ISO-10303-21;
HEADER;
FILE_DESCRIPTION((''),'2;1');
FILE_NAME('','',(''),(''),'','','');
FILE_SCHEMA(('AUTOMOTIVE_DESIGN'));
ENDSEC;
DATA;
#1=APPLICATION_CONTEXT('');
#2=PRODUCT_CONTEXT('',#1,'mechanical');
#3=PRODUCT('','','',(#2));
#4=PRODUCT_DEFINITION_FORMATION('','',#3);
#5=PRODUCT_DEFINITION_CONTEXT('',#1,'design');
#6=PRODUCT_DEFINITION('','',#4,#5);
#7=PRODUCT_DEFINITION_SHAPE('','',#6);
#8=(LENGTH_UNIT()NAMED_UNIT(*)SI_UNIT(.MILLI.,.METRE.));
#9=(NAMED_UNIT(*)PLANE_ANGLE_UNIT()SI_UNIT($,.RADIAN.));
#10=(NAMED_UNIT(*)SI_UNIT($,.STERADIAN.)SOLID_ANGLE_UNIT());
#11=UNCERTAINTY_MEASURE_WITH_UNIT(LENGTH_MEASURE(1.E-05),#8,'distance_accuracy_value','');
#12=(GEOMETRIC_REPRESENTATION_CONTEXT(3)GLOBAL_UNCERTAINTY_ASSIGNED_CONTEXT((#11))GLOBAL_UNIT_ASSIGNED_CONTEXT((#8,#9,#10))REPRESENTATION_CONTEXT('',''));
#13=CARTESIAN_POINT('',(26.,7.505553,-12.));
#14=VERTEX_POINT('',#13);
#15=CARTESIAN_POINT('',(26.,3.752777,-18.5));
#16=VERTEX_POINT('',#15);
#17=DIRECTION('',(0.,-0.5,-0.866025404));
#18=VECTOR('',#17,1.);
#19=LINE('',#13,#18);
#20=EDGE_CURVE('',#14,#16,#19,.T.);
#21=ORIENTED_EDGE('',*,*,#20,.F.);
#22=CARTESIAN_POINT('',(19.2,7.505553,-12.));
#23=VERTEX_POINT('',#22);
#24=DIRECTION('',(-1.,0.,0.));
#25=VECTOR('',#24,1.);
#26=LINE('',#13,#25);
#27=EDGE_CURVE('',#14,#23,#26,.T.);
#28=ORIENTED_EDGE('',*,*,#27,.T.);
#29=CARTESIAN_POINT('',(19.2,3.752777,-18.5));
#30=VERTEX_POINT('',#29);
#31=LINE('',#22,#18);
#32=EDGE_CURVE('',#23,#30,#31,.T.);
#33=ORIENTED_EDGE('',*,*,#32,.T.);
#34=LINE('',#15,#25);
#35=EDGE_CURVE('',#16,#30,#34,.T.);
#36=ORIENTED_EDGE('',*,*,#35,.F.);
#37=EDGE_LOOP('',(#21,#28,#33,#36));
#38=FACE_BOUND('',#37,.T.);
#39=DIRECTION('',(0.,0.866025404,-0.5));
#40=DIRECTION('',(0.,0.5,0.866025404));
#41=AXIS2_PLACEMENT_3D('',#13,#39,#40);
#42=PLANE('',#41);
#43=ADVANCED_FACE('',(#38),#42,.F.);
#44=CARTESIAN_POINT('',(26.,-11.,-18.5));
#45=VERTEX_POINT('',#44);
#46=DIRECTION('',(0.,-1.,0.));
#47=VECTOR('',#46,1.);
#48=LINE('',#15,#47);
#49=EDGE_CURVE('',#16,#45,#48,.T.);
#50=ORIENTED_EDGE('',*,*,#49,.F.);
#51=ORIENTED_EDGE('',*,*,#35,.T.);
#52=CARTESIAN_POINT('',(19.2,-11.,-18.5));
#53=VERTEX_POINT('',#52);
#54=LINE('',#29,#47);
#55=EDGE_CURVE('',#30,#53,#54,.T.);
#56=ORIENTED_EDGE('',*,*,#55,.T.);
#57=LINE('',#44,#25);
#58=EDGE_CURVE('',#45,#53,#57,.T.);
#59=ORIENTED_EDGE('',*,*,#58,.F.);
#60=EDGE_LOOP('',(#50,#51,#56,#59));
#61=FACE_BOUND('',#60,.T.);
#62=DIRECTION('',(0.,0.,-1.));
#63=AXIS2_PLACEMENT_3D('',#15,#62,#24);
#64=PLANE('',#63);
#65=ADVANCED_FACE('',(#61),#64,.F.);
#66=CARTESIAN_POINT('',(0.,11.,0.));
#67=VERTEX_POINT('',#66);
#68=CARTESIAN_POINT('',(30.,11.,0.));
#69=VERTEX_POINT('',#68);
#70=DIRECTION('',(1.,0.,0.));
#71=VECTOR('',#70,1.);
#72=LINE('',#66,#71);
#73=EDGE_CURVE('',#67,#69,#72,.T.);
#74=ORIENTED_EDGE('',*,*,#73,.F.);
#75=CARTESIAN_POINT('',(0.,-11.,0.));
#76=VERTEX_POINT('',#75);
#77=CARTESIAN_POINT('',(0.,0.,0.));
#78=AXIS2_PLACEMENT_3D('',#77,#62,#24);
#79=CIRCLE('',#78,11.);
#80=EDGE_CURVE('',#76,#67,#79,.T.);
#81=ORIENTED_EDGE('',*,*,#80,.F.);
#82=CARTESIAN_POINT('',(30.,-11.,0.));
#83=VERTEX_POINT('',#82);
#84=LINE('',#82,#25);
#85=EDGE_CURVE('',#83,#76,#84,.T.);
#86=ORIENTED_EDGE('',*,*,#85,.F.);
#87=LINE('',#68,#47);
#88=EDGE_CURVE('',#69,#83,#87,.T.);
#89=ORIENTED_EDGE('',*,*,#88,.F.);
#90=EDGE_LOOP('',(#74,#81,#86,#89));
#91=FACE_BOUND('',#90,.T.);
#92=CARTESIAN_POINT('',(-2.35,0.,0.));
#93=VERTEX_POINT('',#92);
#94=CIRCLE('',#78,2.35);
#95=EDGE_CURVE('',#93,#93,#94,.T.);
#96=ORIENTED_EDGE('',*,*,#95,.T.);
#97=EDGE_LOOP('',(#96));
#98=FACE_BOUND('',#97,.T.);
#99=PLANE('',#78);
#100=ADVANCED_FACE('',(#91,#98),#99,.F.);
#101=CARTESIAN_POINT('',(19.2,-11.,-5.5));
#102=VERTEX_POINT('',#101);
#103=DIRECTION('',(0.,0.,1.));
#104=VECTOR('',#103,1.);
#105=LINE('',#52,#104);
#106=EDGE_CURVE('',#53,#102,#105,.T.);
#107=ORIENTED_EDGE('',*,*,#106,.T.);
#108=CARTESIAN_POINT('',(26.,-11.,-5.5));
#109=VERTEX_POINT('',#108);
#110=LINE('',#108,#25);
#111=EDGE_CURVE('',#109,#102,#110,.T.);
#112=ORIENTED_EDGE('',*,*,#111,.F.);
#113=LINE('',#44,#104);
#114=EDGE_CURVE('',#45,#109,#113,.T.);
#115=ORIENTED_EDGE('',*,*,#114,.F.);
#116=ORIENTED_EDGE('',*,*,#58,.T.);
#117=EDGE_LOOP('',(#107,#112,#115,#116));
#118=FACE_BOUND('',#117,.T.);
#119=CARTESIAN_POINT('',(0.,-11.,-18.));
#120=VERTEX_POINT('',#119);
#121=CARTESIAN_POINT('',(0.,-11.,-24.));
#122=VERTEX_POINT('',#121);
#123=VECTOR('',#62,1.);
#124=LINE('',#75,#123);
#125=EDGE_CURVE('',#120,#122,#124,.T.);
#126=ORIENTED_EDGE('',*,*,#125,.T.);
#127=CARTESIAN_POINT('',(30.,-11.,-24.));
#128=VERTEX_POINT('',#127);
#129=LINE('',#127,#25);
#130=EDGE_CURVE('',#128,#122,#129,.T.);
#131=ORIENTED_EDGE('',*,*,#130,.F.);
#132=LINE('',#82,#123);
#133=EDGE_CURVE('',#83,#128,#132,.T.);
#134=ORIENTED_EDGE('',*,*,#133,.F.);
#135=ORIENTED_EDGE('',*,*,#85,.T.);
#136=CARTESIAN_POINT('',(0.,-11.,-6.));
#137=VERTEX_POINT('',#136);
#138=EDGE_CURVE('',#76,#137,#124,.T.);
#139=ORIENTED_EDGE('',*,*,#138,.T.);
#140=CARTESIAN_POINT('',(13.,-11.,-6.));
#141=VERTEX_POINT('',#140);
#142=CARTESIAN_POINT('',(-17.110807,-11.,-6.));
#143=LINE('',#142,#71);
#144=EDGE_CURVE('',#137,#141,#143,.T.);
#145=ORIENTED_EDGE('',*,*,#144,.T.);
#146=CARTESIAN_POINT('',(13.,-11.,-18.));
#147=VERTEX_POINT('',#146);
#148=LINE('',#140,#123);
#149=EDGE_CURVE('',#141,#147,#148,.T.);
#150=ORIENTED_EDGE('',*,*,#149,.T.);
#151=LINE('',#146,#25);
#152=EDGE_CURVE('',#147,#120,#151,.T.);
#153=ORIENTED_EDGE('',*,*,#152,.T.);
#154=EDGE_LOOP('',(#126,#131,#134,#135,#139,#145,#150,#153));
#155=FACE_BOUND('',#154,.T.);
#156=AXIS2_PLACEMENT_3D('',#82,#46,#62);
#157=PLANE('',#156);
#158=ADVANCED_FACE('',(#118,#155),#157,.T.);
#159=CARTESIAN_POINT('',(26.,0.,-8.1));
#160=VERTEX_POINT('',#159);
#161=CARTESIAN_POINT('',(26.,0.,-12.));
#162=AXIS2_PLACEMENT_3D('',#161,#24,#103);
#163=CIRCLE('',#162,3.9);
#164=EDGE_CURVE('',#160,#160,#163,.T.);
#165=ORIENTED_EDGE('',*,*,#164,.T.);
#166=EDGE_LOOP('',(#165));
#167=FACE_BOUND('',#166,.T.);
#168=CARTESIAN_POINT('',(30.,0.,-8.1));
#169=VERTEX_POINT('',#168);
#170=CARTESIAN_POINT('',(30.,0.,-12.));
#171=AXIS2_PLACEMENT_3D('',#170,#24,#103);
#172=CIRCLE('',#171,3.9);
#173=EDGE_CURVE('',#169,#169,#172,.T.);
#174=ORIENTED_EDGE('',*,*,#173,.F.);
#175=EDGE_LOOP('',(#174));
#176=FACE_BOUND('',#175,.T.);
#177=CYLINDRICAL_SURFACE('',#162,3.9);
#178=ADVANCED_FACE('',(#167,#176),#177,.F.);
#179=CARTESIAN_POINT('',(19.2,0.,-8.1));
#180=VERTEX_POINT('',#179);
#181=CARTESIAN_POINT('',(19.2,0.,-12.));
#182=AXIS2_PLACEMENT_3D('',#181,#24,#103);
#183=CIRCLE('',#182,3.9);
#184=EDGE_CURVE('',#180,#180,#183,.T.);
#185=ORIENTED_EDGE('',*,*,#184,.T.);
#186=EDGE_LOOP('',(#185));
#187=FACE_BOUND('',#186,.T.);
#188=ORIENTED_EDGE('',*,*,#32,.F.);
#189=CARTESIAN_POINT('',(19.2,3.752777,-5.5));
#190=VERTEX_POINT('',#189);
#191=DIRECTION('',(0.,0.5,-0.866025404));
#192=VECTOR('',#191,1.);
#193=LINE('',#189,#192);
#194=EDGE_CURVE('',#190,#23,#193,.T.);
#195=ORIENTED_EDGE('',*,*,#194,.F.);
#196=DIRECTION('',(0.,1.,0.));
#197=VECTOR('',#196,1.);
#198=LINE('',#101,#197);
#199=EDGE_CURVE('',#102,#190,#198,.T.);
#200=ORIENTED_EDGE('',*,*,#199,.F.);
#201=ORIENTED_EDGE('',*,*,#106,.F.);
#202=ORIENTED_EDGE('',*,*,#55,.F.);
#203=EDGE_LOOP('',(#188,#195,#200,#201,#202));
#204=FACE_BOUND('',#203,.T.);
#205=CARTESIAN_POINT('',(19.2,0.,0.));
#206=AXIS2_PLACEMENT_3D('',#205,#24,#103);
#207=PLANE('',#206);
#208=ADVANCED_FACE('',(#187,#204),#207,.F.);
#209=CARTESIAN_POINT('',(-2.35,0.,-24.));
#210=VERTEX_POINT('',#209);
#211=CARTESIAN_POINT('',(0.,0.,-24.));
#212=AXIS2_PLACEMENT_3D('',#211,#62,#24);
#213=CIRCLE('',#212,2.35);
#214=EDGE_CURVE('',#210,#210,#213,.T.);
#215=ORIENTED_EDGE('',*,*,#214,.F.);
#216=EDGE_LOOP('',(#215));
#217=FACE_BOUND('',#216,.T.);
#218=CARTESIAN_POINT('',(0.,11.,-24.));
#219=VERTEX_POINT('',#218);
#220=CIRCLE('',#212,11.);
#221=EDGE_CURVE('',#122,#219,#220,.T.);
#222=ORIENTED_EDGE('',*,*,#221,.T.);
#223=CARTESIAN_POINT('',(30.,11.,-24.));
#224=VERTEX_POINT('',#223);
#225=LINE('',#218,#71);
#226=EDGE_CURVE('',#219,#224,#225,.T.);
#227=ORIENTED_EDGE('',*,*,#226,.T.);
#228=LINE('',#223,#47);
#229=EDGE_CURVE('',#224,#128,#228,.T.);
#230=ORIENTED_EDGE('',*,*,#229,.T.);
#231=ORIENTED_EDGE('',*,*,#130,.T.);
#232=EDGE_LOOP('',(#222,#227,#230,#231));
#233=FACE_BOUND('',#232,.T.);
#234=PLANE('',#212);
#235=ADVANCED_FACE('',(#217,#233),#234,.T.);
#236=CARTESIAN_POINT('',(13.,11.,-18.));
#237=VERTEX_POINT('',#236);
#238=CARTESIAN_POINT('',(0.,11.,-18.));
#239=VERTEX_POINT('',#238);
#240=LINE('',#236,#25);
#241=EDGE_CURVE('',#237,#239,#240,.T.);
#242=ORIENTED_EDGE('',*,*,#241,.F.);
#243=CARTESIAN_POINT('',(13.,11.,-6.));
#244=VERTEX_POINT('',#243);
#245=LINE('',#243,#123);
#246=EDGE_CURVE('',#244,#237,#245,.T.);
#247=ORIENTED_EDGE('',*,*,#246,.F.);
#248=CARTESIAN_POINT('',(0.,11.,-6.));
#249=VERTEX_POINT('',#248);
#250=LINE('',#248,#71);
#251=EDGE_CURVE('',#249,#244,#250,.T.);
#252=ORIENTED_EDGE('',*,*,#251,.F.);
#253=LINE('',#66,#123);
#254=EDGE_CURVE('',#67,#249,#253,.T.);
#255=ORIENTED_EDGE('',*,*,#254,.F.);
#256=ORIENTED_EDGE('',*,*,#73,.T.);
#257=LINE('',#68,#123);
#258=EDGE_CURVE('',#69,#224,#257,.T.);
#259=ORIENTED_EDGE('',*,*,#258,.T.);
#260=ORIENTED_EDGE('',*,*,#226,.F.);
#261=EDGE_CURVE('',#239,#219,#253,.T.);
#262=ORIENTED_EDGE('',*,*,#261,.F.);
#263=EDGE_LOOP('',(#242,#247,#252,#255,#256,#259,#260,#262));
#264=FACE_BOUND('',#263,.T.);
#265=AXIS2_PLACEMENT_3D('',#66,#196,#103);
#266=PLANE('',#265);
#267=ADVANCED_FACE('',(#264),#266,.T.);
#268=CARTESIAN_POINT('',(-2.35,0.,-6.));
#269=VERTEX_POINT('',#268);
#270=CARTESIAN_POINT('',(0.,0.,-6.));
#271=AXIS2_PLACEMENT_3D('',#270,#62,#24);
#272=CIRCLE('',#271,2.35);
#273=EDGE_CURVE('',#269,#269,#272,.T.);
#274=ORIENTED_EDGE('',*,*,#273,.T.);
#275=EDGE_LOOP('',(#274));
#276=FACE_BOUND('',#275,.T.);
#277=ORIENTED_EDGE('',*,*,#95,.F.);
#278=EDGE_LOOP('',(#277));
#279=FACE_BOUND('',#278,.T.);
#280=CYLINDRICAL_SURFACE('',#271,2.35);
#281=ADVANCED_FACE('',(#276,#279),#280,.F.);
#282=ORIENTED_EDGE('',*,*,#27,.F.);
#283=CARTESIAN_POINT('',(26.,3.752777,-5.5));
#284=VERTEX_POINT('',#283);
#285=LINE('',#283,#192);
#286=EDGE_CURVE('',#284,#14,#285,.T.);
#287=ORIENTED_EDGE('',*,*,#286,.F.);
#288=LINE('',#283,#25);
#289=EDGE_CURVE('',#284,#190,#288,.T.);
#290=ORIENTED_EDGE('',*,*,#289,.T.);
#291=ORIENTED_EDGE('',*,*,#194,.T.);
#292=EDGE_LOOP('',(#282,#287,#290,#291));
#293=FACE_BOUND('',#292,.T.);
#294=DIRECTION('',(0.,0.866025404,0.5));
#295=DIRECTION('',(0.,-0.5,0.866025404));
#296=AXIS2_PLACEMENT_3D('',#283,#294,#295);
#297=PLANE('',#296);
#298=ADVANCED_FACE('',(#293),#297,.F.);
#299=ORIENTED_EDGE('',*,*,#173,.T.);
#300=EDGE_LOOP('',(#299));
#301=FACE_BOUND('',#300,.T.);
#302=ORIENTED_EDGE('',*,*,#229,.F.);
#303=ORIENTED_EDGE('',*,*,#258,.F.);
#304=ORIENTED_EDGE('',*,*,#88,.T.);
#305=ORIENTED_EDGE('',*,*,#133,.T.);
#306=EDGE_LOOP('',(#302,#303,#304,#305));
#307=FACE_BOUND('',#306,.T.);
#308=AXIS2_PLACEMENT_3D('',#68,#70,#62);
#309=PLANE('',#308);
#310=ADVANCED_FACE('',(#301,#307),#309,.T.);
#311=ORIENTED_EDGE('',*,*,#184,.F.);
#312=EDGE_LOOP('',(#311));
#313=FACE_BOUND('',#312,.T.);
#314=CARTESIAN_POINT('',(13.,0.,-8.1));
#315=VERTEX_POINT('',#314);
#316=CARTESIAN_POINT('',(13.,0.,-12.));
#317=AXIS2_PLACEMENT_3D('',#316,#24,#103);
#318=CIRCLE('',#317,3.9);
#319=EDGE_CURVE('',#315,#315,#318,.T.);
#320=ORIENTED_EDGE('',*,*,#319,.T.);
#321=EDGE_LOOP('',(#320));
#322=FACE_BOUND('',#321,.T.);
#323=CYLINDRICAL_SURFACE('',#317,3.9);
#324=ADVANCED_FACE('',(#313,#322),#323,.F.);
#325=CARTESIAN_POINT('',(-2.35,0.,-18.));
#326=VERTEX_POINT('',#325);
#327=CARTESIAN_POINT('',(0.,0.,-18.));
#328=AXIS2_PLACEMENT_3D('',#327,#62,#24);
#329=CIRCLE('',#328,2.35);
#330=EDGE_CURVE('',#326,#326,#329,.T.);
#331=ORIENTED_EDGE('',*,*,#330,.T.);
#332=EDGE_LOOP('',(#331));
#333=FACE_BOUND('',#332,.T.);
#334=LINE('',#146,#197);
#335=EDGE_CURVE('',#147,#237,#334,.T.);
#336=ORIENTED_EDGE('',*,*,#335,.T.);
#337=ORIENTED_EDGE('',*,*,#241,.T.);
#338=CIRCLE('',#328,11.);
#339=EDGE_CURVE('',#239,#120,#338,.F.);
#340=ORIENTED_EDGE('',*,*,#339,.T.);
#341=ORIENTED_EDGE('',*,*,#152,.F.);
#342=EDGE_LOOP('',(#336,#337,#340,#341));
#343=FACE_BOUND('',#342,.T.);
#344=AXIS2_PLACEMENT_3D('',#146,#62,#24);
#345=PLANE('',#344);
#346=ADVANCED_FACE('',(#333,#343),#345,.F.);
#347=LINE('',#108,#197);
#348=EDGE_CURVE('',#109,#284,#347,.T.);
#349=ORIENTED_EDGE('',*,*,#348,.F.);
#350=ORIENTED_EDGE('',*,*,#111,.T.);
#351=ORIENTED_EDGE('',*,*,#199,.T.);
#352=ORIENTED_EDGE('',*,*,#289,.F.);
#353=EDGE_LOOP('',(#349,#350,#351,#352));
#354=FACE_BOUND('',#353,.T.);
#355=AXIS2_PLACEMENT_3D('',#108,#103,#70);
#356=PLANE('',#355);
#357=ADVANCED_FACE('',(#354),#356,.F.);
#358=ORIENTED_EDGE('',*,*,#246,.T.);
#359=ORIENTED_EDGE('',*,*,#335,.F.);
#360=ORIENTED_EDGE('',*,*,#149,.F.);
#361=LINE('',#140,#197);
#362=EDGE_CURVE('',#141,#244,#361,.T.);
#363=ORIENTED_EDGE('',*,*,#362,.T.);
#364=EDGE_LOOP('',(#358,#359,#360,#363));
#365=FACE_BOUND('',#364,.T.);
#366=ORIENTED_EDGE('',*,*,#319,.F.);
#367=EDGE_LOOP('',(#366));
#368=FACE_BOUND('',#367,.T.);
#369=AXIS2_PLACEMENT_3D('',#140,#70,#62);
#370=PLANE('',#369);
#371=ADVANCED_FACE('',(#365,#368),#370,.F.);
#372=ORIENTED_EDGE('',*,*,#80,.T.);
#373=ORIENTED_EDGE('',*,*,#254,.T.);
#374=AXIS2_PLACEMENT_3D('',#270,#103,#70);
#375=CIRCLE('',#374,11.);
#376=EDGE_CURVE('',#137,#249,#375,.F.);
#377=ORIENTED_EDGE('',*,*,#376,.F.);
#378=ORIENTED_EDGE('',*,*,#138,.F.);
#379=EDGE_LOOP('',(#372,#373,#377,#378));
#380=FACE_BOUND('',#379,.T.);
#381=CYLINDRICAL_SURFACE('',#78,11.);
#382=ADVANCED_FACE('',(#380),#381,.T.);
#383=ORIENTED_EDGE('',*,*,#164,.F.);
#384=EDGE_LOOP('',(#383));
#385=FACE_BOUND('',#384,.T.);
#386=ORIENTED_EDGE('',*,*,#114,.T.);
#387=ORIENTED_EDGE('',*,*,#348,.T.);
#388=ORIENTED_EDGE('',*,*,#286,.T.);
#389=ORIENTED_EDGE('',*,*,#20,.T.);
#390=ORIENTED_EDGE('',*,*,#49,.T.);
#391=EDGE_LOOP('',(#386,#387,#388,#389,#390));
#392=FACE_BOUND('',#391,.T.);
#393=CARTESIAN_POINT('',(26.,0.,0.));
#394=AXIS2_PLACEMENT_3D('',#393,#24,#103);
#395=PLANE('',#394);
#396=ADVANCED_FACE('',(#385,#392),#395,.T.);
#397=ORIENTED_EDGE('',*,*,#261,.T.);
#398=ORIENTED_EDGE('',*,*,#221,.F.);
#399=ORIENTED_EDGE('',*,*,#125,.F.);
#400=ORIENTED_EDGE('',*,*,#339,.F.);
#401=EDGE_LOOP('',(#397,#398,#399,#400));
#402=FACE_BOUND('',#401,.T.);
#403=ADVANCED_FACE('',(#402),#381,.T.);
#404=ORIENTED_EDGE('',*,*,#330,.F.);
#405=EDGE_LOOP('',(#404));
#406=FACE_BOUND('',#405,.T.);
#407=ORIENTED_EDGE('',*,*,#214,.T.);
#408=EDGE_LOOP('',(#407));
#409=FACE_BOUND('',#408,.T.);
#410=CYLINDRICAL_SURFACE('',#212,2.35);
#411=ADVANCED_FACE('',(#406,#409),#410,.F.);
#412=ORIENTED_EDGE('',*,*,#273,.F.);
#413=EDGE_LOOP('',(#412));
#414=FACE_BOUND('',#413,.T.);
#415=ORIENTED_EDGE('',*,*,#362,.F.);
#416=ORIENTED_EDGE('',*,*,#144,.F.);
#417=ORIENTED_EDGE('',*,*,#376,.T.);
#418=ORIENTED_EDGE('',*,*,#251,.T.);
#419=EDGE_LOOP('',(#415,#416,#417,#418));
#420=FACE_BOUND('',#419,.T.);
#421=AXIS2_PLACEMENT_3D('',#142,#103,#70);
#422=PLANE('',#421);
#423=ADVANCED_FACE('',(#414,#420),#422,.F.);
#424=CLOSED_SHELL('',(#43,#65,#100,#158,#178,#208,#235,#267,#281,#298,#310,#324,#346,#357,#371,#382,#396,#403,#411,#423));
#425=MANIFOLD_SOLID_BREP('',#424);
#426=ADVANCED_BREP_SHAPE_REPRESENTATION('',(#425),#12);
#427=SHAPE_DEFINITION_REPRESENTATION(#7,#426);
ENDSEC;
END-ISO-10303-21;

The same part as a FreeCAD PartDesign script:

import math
import FreeCAD as App
import Part
import Sketcher
from FreeCAD import Vector
Q = App.Units.Quantity


def add_polygon(sketch, points):
    """Adds a closed chain of lines whose ends are joined by coincident constraints."""
    first, n = sketch.GeometryCount, len(points)
    for a, b in zip(points, points[1:] + points[:1]):
        sketch.addGeometry(Part.LineSegment(App.Vector(*a, 0), App.Vector(*b, 0)), False)
    for i in range(n):
        sketch.addConstraint(Sketcher.Constraint("Coincident", first + i, 2, first + (i + 1) % n, 1))

doc = App.newDocument("Part")
body = doc.addObject("PartDesign::Body", "Body")

sketch1 = body.newObject("Sketcher::SketchObject", "Sketch")
sketch1.AttachmentSupport = (doc.getObject("XY_Plane"), [""])
sketch1.MapMode = "FlatFace"
sketch1.AttachmentOffset = App.Placement(Vector(0, 0, -24), App.Rotation())
sketch1.addGeometry([
    Part.LineSegment(Vector(0, 11, 0), Vector(30, 11, 0)),
    Part.LineSegment(Vector(30, 11, 0), Vector(30, -11, 0)),
    Part.LineSegment(Vector(30, -11, 0), Vector(0, -11, 0)),
    Part.ArcOfCircle(Part.Circle(Vector(0, 0, 0), Vector(0, 0, 1), 11), math.radians(90), math.radians(270)),
], False)
sketch1.addConstraint([
    Sketcher.Constraint("Coincident", 0, 2, 1, 1),
    Sketcher.Constraint("Coincident", 1, 2, 2, 1),
    Sketcher.Constraint("Tangent", 2, 2, 3, 2),
    Sketcher.Constraint("Tangent", 3, 1, 0, 1),
    Sketcher.Constraint("Horizontal", 0),
    Sketcher.Constraint("Vertical", 1),
    Sketcher.Constraint("Horizontal", 2),
    Sketcher.Constraint("Coincident", 3, 3, -1, 1),
    Sketcher.Constraint("Radius", 3, 11.0),
    Sketcher.Constraint("DistanceX", 0, 1, 0, 2, 30.0),
])
pad1 = body.newObject("PartDesign::Pad", "Pad")
pad1.Profile = sketch1
pad1.Length = 24

sketch2 = body.newObject("Sketcher::SketchObject", "Sketch001")
sketch2.AttachmentSupport = (doc.getObject("XZ_Plane"), [""])
sketch2.MapMode = "FlatFace"
sketch2.AttachmentOffset = App.Placement(Vector(0, 0, -11), App.Rotation())
add_polygon(sketch2, [(13, -6), (13, -18), (-17, -18), (-17, -6)])
sketch2.addConstraint([
    Sketcher.Constraint("Vertical", 0),
    Sketcher.Constraint("Horizontal", 1),
    Sketcher.Constraint("Vertical", 2),
    Sketcher.Constraint("Horizontal", 3),
    Sketcher.Constraint("DistanceY", 0, 2, 0, 1, 12.0),
    Sketcher.Constraint("DistanceX", -1, 1, 0, 2, 13.0),
    Sketcher.Constraint("DistanceY", 0, 2, -1, 1, 18.0),
    Sketcher.Constraint("DistanceX", 1, 2, 1, 1, 30.110807),
])
pocket1 = body.newObject("PartDesign::Pocket", "Pocket")
pocket1.Profile = sketch2
pocket1.Type = "ThroughAll"
pocket1.Reversed = True

sketch3 = body.newObject("Sketcher::SketchObject", "Sketch002")
sketch3.AttachmentSupport = (doc.getObject("YZ_Plane"), [""])
sketch3.MapMode = "FlatFace"
sketch3.AttachmentOffset = App.Placement(Vector(0, 0, 19.2), App.Rotation())
add_polygon(sketch3, [(-11, -18), (-11, -6), (4, -6), (8, -12), (4, -18)])
sketch3.addConstraint([
    Sketcher.Constraint("Vertical", 0),
    Sketcher.Constraint("Horizontal", 1),
    Sketcher.Constraint("Horizontal", 4),
    Sketcher.Constraint("Vertical", 1, 2, 3, 2),
    Sketcher.Constraint("Equal", 2, 3),
    Sketcher.Constraint("DistanceY", 0, 1, 0, 2, 13.0),
    Sketcher.Constraint("Angle", 2, Q("-60 deg")),
    Sketcher.Constraint("DistanceX", 0, 2, -1, 1, 11.0),
    Sketcher.Constraint("DistanceY", 2, 2, -1, 1, 12.0),
    Sketcher.Constraint("DistanceX", 1, 1, 1, 2, 14.752777),
])
pocket2 = body.newObject("PartDesign::Pocket", "Pocket001")
pocket2.Profile = sketch3
pocket2.Length = 6.8
pocket2.Reversed = True

sketch4 = body.newObject("Sketcher::SketchObject", "Sketch003")
sketch4.AttachmentSupport = (doc.getObject("YZ_Plane"), [""])
sketch4.MapMode = "FlatFace"
sketch4.AttachmentOffset = App.Placement(Vector(0, 0, 13), App.Rotation())
sketch4.addGeometry(Part.Circle(Vector(0, -12, 0), Vector(0, 0, 1), 3.9), False)
sketch4.addConstraint([
    Sketcher.Constraint("PointOnObject", 0, 3, -2),
    Sketcher.Constraint("Diameter", 0, 7.8),
    Sketcher.Constraint("DistanceY", 0, 3, -1, 1, 12.0),
])
doc.recompute()
hole = body.newObject("PartDesign::Hole", "Hole")
hole.Profile = sketch4
hole.ThreadType = "None"
hole.Diameter = 7.8
hole.DepthType = "Dimension"
hole.Depth = 6.2
hole.DrillPoint = "Flat"
hole.Reversed = True

sketch5 = body.newObject("Sketcher::SketchObject", "Sketch004")
sketch5.AttachmentSupport = (doc.getObject("YZ_Plane"), [""])
sketch5.MapMode = "FlatFace"
sketch5.AttachmentOffset = App.Placement(Vector(0, 0, 26), App.Rotation())
sketch5.addGeometry(Part.Circle(Vector(0, -12, 0), Vector(0, 0, 1), 3.9), False)
sketch5.addConstraint([
    Sketcher.Constraint("PointOnObject", 0, 3, -2),
    Sketcher.Constraint("Diameter", 0, 7.8),
    Sketcher.Constraint("DistanceY", 0, 3, -1, 1, 12.0),
])
doc.recompute()
hole2 = body.newObject("PartDesign::Hole", "Hole001")
hole2.Profile = sketch5
hole2.ThreadType = "None"
hole2.Diameter = 7.8
hole2.DepthType = "ThroughAll"
hole2.Reversed = True

sketch6 = body.newObject("Sketcher::SketchObject", "Sketch005")
sketch6.AttachmentSupport = (doc.getObject("XY_Plane"), [""])
sketch6.MapMode = "FlatFace"
sketch6.AttachmentOffset = App.Placement(Vector(0, 0, -24), App.Rotation())
sketch6.addGeometry(Part.Circle(Vector(0, 0, 0), Vector(0, 0, 1), 2.4), False)
sketch6.addConstraint([
    Sketcher.Constraint("Coincident", 0, 3, -1, 1),
    Sketcher.Constraint("Diameter", 0, 4.7),
])
doc.recompute()
hole3 = body.newObject("PartDesign::Hole", "Hole002")
hole3.Profile = sketch6
hole3.ThreadType = "None"
hole3.Diameter = 4.7
hole3.DepthType = "Dimension"
hole3.Depth = 6
hole3.DrillPoint = "Flat"
hole3.Reversed = True

sketch7 = body.newObject("Sketcher::SketchObject", "Sketch006")
sketch7.AttachmentSupport = (doc.getObject("XY_Plane"), [""])
sketch7.MapMode = "FlatFace"
sketch7.AttachmentOffset = App.Placement(Vector(0, 0, -6), App.Rotation())
sketch7.addGeometry(Part.Circle(Vector(0, 0, 0), Vector(0, 0, 1), 2.4), False)
sketch7.addConstraint([
    Sketcher.Constraint("Coincident", 0, 3, -1, 1),
    Sketcher.Constraint("Diameter", 0, 4.7),
])
doc.recompute()
hole4 = body.newObject("PartDesign::Hole", "Hole003")
hole4.Profile = sketch7
hole4.ThreadType = "None"
hole4.Diameter = 4.7
hole4.DepthType = "ThroughAll"
hole4.Reversed = True

doc.recompute()
